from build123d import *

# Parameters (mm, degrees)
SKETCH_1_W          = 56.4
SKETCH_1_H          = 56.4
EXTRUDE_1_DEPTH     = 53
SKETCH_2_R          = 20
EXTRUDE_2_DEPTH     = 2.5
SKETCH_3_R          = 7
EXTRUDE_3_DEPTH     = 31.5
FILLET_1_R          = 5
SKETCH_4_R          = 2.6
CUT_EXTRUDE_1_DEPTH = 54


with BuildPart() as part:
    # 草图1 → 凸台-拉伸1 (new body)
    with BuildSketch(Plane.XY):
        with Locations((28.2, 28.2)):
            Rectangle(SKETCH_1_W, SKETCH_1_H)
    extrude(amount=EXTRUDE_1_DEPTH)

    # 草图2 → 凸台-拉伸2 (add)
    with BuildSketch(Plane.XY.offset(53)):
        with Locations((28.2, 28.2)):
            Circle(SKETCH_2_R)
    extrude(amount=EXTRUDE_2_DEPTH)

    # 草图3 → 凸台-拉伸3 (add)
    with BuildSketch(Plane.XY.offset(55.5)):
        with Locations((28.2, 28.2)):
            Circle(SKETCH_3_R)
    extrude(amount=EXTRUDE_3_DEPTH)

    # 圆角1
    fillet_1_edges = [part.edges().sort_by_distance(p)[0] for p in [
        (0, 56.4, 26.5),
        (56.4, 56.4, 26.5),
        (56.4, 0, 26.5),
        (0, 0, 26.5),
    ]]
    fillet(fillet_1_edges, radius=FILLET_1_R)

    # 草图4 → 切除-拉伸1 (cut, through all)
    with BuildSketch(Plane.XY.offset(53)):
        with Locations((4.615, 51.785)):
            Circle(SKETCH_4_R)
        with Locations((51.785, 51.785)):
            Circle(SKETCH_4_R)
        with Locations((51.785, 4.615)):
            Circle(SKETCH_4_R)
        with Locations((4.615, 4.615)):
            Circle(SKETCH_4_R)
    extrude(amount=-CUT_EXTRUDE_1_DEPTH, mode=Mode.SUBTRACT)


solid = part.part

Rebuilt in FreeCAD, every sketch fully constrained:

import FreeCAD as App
import Part
import Sketcher
Q = App.Units.Quantity


def edges_at(feature, points):
    """Names of the edges that pass closest to the given points."""
    edges = feature.Shape.Edges
    near = lambda p: min(range(len(edges)), key=lambda i: edges[i].distToShape(Part.Vertex(*p))[0])
    return sorted({f"Edge{near(p) + 1}" for p in points})

doc = App.newDocument("Part")
body = doc.addObject("PartDesign::Body", "Body")

sketch1 = body.newObject("Sketcher::SketchObject", "Sketch")
sketch1.AttachmentSupport = (doc.getObject("XY_Plane"), [""])
sketch1.MapMode = "FlatFace"
sketch1.addGeometry([
    Part.LineSegment(App.Vector(0, 56.4, 0), App.Vector(0, 0, 0)),
    Part.LineSegment(App.Vector(0, 0, 0), App.Vector(56.4, 0, 0)),
    Part.LineSegment(App.Vector(56.4, 0, 0), App.Vector(56.4, 56.4, 0)),
    Part.LineSegment(App.Vector(56.4, 56.4, 0), App.Vector(0, 56.4, 0)),
], False)
sketch1.addConstraint([
    Sketcher.Constraint("Coincident", 0, 2, 1, 1),
    Sketcher.Constraint("Coincident", 1, 2, 2, 1),
    Sketcher.Constraint("Coincident", 2, 2, 3, 1),
    Sketcher.Constraint("Coincident", 3, 2, 0, 1),
    Sketcher.Constraint("Vertical", 0),
    Sketcher.Constraint("Horizontal", 1),
    Sketcher.Constraint("Vertical", 2),
    Sketcher.Constraint("Horizontal", 3),
    Sketcher.Constraint("Coincident", 0, 2, -1, 1),
    Sketcher.Constraint("Equal", 3, 0),
    Sketcher.Constraint("DistanceX", 1, 1, 1, 2, Q("56.4 mm")),
])
pad1 = body.newObject("PartDesign::Pad", "Pad")
pad1.Profile = sketch1
pad1.Length = 53

sketch2 = body.newObject("Sketcher::SketchObject", "Sketch001")
sketch2.AttachmentSupport = (doc.getObject("XY_Plane"), [""])
sketch2.MapMode = "FlatFace"
sketch2.AttachmentOffset = App.Placement(App.Vector(0, 0, 53), App.Rotation())
sketch2.addGeometry(Part.Circle(App.Vector(28.2, 28.2, 0), App.Vector(0, 0, 1), 20), False)
sketch2.addConstraint([
    Sketcher.Constraint("Diameter", 0, Q("40 mm")),
    Sketcher.Constraint("DistanceX", -1, 1, 0, 3, Q("28.2 mm")),
    Sketcher.Constraint("DistanceY", -1, 1, 0, 3, Q("28.2 mm")),
])
pad2 = body.newObject("PartDesign::Pad", "Pad001")
pad2.Profile = sketch2
pad2.Length = 2.5

sketch3 = body.newObject("Sketcher::SketchObject", "Sketch002")
sketch3.AttachmentSupport = (doc.getObject("XY_Plane"), [""])
sketch3.MapMode = "FlatFace"
sketch3.AttachmentOffset = App.Placement(App.Vector(0, 0, 55.5), App.Rotation())
sketch3.addGeometry(Part.Circle(App.Vector(28.2, 28.2, 0), App.Vector(0, 0, 1), 7), False)
sketch3.addConstraint([
    Sketcher.Constraint("Diameter", 0, Q("14 mm")),
    Sketcher.Constraint("DistanceX", -1, 1, 0, 3, Q("28.2 mm")),
    Sketcher.Constraint("DistanceY", -1, 1, 0, 3, Q("28.2 mm")),
])
pad3 = body.newObject("PartDesign::Pad", "Pad002")
pad3.Profile = sketch3
pad3.Length = 31.5
doc.recompute()

fillet = body.newObject("PartDesign::Fillet", "Fillet")
fillet.Base = (pad3, edges_at(pad3, [
    (0, 56.4, 26.5),
    (56.4, 56.4, 26.5),
    (56.4, 0, 26.5),
    (0, 0, 26.5),
]))
fillet.Radius = 5

sketch4 = body.newObject("Sketcher::SketchObject", "Sketch003")
sketch4.AttachmentSupport = (doc.getObject("XY_Plane"), [""])
sketch4.MapMode = "FlatFace"
sketch4.AttachmentOffset = App.Placement(App.Vector(0, 0, 53), App.Rotation())
sketch4.addGeometry([
    Part.Circle(App.Vector(4.615, 51.785, 0), App.Vector(0, 0, 1), 2.6),
    Part.Circle(App.Vector(51.785, 51.785, 0), App.Vector(0, 0, 1), 2.6),
    Part.Circle(App.Vector(51.785, 4.615, 0), App.Vector(0, 0, 1), 2.6),
    Part.Circle(App.Vector(4.615, 4.615, 0), App.Vector(0, 0, 1), 2.6),
], False)
sketch4.addConstraint([
    Sketcher.Constraint("Equal", 0, 1),
    Sketcher.Constraint("Equal", 1, 2),
    Sketcher.Constraint("Equal", 2, 3),
    Sketcher.Constraint("Horizontal", 0, 3, 1, 3),
    Sketcher.Constraint("Horizontal", 2, 3, 3, 3),
    Sketcher.Constraint("Vertical", 1, 3, 2, 3),
    Sketcher.Constraint("Vertical", 0, 3, 3, 3),
    Sketcher.Constraint("Diameter", 0, Q("5.2 mm")),
    Sketcher.Constraint("DistanceX", 0, 3, 1, 3, Q("47.17 mm")),
    Sketcher.Constraint("DistanceY", 2, 3, 1, 3, Q("47.17 mm")),
    Sketcher.Constraint("DistanceX", -1, 1, 0, 3, Q("4.615 mm")),
    Sketcher.Constraint("DistanceY", -1, 1, 0, 3, Q("51.785 mm")),
])
pocket1 = body.newObject("PartDesign::Pocket", "Pocket")
pocket1.Profile = sketch4
pocket1.Type = "ThroughAll"

doc.recompute()
